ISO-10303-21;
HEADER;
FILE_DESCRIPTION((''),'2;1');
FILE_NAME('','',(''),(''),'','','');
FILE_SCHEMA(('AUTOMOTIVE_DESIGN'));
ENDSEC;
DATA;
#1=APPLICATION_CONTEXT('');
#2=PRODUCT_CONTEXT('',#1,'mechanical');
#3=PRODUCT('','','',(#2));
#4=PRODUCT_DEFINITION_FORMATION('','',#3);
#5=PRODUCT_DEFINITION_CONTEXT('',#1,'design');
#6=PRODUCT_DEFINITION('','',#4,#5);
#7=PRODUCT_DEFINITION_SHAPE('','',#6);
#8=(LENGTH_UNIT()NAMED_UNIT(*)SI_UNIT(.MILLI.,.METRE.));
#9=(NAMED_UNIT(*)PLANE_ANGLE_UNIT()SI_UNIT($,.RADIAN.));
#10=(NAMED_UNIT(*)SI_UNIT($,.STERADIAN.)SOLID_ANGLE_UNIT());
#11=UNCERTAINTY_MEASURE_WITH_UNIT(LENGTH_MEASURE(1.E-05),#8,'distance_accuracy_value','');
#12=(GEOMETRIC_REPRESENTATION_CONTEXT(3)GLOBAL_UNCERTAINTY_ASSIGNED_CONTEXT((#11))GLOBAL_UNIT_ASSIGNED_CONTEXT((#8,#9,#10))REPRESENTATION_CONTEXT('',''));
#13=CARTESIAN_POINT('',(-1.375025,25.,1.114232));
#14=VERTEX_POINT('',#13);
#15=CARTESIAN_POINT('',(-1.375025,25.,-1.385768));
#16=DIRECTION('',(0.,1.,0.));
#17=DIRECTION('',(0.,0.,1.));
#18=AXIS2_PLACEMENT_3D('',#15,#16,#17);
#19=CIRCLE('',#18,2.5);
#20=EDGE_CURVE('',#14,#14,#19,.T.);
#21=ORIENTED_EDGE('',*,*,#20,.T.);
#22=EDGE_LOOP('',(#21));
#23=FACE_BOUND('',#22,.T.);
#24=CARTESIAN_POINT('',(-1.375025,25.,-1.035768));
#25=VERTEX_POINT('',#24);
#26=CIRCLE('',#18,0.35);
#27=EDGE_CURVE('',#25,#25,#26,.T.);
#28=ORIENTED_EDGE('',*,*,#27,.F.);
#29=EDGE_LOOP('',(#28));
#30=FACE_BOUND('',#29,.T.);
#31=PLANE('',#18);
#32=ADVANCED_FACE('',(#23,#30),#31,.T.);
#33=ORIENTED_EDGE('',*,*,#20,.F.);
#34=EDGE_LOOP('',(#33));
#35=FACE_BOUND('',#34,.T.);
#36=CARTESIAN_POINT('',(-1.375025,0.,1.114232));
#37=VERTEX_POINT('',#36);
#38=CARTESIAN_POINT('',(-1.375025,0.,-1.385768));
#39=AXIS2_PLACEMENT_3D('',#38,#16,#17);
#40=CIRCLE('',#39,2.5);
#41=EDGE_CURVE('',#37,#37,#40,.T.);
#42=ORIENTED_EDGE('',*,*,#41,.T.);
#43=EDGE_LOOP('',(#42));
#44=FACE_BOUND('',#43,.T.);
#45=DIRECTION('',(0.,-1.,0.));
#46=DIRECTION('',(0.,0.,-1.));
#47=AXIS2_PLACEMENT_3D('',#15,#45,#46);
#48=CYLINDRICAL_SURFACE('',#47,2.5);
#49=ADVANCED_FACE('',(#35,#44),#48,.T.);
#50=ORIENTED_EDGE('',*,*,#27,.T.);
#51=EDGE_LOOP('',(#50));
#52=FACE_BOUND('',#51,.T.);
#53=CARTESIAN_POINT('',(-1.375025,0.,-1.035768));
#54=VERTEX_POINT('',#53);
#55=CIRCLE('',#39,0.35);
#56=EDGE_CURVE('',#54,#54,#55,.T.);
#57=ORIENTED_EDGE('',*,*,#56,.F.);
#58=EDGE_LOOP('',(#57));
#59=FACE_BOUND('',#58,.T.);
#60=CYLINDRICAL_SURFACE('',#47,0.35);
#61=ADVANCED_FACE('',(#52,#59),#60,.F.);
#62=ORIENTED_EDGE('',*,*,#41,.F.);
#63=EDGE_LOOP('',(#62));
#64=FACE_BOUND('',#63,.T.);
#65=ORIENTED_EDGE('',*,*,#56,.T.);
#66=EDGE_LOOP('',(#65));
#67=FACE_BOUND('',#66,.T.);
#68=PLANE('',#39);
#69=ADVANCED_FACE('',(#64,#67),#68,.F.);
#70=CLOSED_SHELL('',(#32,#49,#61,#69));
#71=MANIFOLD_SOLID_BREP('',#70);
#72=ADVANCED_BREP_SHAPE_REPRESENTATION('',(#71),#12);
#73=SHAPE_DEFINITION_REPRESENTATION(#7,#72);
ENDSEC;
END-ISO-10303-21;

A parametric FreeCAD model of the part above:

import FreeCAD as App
import Part
import Sketcher
from FreeCAD import Vector
Q = App.Units.Quantity

doc = App.newDocument("Part")
body = doc.addObject("PartDesign::Body", "Body")

sketch1 = doc.addObject("Sketcher::SketchObject", "Sketch")
body.addObject(sketch1)
sketch1.AttachmentSupport = (doc.XZ_Plane, [""])
sketch1.MapMode = "FlatFace"
sketch1.addGeometry(Part.Circle(Vector(-1.38, -1.39, 0), Vector(0, 0, 1), 2.5), False)
sketch1.addGeometry(Part.Circle(Vector(-1.38, -1.39, 0), Vector(0, 0, 1), 0.35), False)
sketch1.addConstraint(Sketcher.Constraint("Coincident", 1, 3, 0, 3))
sketch1.addConstraint(Sketcher.Constraint("Diameter", 0, Q("5 mm")))
sketch1.addConstraint(Sketcher.Constraint("Diameter", 1, Q("0.7 mm")))
sketch1.addConstraint(Sketcher.Constraint("DistanceX", 0, 3, -1, 1, Q("1.375025 mm")))
sketch1.addConstraint(Sketcher.Constraint("DistanceY", 0, 3, -1, 1, Q("1.385768 mm")))
pad1 = doc.addObject("PartDesign::Pad", "Pad")
body.addObject(pad1)
pad1.Profile = sketch1
pad1.Length = 25
pad1.Reversed = True

doc.recompute()
